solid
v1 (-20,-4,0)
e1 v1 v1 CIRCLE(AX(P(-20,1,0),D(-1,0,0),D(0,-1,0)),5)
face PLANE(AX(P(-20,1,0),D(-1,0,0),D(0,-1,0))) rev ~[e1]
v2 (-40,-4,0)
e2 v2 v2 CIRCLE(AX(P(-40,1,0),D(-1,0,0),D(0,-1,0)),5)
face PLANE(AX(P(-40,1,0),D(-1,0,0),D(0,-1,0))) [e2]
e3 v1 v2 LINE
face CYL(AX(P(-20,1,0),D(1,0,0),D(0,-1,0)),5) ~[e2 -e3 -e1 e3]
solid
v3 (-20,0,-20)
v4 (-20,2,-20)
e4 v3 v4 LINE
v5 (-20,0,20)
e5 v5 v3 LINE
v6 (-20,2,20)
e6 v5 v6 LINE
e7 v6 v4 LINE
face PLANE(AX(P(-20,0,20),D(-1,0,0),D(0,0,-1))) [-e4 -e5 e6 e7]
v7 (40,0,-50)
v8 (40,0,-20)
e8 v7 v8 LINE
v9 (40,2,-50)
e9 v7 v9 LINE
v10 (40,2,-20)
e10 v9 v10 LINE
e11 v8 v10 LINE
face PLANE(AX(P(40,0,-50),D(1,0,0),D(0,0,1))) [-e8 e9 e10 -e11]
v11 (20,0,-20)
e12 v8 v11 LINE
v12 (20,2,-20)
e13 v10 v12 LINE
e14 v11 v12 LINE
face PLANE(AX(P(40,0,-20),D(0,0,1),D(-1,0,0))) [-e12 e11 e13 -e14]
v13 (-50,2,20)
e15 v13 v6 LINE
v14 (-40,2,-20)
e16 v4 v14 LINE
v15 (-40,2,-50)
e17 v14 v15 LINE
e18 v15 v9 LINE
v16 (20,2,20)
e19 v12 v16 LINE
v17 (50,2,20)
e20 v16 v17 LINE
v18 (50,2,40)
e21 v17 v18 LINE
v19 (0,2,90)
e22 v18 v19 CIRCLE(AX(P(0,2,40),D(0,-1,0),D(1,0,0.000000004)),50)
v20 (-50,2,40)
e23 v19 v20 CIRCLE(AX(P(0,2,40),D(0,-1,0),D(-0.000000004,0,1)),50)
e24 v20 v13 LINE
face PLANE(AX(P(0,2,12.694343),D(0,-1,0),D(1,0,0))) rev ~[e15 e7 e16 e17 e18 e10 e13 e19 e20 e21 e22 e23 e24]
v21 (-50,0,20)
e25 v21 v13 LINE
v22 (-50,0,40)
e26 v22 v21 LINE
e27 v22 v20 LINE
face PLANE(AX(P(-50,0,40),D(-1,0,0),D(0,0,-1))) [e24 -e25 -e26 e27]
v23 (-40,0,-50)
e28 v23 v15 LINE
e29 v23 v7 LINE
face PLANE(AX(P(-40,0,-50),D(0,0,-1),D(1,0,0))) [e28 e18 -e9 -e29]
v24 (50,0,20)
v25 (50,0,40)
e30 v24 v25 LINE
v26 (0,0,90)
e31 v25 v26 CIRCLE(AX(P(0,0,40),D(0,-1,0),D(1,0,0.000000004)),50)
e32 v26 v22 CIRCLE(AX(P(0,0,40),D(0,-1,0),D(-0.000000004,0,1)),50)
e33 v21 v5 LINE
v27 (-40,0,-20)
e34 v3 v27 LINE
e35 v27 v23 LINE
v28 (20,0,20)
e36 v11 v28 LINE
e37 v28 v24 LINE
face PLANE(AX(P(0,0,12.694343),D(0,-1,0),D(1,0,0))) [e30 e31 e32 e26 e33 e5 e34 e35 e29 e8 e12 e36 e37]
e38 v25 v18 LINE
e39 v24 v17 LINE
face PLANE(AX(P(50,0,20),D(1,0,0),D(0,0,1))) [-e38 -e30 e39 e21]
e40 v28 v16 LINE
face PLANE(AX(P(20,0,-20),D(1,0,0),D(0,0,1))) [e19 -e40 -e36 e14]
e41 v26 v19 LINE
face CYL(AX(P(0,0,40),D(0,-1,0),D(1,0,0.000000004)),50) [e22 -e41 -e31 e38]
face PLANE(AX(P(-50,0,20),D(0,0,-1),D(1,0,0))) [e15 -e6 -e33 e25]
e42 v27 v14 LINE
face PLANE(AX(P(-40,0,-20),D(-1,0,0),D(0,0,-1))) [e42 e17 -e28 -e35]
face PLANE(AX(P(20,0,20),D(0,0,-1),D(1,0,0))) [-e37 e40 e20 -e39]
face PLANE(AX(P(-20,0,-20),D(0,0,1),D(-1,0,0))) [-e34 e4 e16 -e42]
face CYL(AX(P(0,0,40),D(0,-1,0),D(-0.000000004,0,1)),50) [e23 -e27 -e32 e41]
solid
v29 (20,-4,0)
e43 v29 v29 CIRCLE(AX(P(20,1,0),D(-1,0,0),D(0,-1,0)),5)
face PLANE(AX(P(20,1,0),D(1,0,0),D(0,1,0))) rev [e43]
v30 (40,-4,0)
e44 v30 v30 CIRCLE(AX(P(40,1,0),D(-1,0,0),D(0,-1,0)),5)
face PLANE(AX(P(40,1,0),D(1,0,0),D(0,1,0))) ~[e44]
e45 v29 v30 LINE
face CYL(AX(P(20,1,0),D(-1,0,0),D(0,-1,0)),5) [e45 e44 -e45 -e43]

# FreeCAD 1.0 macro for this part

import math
import FreeCAD as App
import Part
import Sketcher

V = App.Vector

doc = App.newDocument("Part")
body = doc.addObject("PartDesign::Body", "Body")

# Sketch on XZ plane
sketch1 = body.newObject("Sketcher::SketchObject", "Sketch")
sketch1.AttachmentSupport = (doc.getObject("XZ_Plane"), [""])
sketch1.MapMode = "FlatFace"
sketch1.addGeometry(Part.LineSegment(V(-40, -50, 0), V(40, -50, 0)), False)
sketch1.addGeometry(Part.LineSegment(V(40, -50, 0), V(40, -20, 0)), False)
sketch1.addGeometry(Part.LineSegment(V(40, -20, 0), V(20, -20, 0)), False)
sketch1.addGeometry(Part.LineSegment(V(20, -20, 0), V(20, 20, 0)), False)
sketch1.addGeometry(Part.LineSegment(V(20, 20, 0), V(50, 20, 0)), False)
sketch1.addGeometry(Part.LineSegment(V(50, 20, 0), V(50, 40, 0)), False)
sketch1.addGeometry(Part.ArcOfCircle(Part.Circle(V(0, 40, 0), V(0, 0, 1), 50), math.radians(0), math.radians(90)), False)
sketch1.addGeometry(Part.ArcOfCircle(Part.Circle(V(0, 40, 0), V(0, 0, 1), 50), math.radians(90), math.radians(180)), False)
sketch1.addGeometry(Part.LineSegment(V(-50, 40, 0), V(-50, 20, 0)), False)
sketch1.addGeometry(Part.LineSegment(V(-50, 20, 0), V(-20, 20, 0)), False)
sketch1.addGeometry(Part.LineSegment(V(-20, 20, 0), V(-20, -20, 0)), False)
sketch1.addGeometry(Part.LineSegment(V(-20, -20, 0), V(-40, -20, 0)), False)
sketch1.addGeometry(Part.LineSegment(V(-40, -20, 0), V(-40, -50, 0)), False)
sketch1.addConstraint(Sketcher.Constraint("Coincident", 0, 2, 1, 1))
sketch1.addConstraint(Sketcher.Constraint("Coincident", 1, 2, 2, 1))
sketch1.addConstraint(Sketcher.Constraint("Coincident", 2, 2, 3, 1))
sketch1.addConstraint(Sketcher.Constraint("Coincident", 3, 2, 4, 1))
sketch1.addConstraint(Sketcher.Constraint("Coincident", 4, 2, 5, 1))
sketch1.addConstraint(Sketcher.Constraint("Tangent", 5, 2, 6, 1))
sketch1.addConstraint(Sketcher.Constraint("Tangent", 6, 2, 7, 1))
sketch1.addConstraint(Sketcher.Constraint("Tangent", 7, 2, 8, 1))
sketch1.addConstraint(Sketcher.Constraint("Coincident", 8, 2, 9, 1))
sketch1.addConstraint(Sketcher.Constraint("Coincident", 9, 2, 10, 1))
sketch1.addConstraint(Sketcher.Constraint("Coincident", 10, 2, 11, 1))
sketch1.addConstraint(Sketcher.Constraint("Coincident", 11, 2, 12, 1))
sketch1.addConstraint(Sketcher.Constraint("Coincident", 12, 2, 0, 1))
sketch1.addConstraint(Sketcher.Constraint("Horizontal", 0))
sketch1.addConstraint(Sketcher.Constraint("Vertical", 1))
sketch1.addConstraint(Sketcher.Constraint("Horizontal", 2))
sketch1.addConstraint(Sketcher.Constraint("Vertical", 3))
sketch1.addConstraint(Sketcher.Constraint("Horizontal", 4))
sketch1.addConstraint(Sketcher.Constraint("Vertical", 5))
sketch1.addConstraint(Sketcher.Constraint("Vertical", 8))
sketch1.addConstraint(Sketcher.Constraint("Horizontal", 9))
sketch1.addConstraint(Sketcher.Constraint("Vertical", 10))
sketch1.addConstraint(Sketcher.Constraint("Horizontal", 11))
sketch1.addConstraint(Sketcher.Constraint("Vertical", 12))
sketch1.addConstraint(Sketcher.Constraint("Equal", 6, 7))
sketch1.addConstraint(Sketcher.Constraint("Symmetric", 2, 2, 9, 2, -1, 1))
sketch1.addConstraint(Sketcher.Constraint("Symmetric", 4, 2, 8, 2, -2))
sketch1.addConstraint(Sketcher.Constraint("Symmetric", 1, 2, 11, 2, -2))
sketch1.addConstraint(Sketcher.Constraint("PointOnObject", 6, 2, -2))
sketch1.addConstraint(Sketcher.Constraint("Equal", 9, 1))
sketch1.addConstraint(Sketcher.Constraint("Equal", 11, 5))
sketch1.addConstraint(Sketcher.Constraint("Radius", 6, 50.0))
sketch1.addConstraint(Sketcher.Constraint("DistanceX", 0, 1, 0, 2, 80.0))
sketch1.addConstraint(Sketcher.Constraint("DistanceX", 2, 2, 2, 1, 20.0))
sketch1.addConstraint(Sketcher.Constraint("DistanceY", 3, 1, 3, 2, 40.0))
pad1 = body.newObject("PartDesign::Pad", "Pad")
pad1.Profile = sketch1
pad1.Length = 2
pad1.Reversed = True
body2 = doc.addObject("PartDesign::Body", "Body001")

# Sketch on YZ plane
sketch2 = body2.newObject("Sketcher::SketchObject", "Sketch001")
sketch2.AttachmentSupport = (doc.getObject("YZ_Plane001"), [""])
sketch2.MapMode = "FlatFace"
sketch2.AttachmentOffset = App.Placement(V(0, 0, -20), App.Rotation())
sketch2.addGeometry(Part.Circle(V(1, 0, 0), V(0, 0, 1), 5), False)
sketch2.addConstraint(Sketcher.Constraint("PointOnObject", 0, 3, -1))
sketch2.addConstraint(Sketcher.Constraint("Diameter", 0, 10.0))
sketch2.addConstraint(Sketcher.Constraint("DistanceX", -1, 1, 0, 3, 1.0))
pad2 = body2.newObject("PartDesign::Pad", "Pad001")
pad2.Profile = sketch2
pad2.Length = 20
pad2.Reversed = True
body3 = doc.addObject("PartDesign::Body", "Body002")
doc.recompute()

mirroring = doc.addObject("Part::Mirroring", "Mirroring")
mirroring.Source = body2
mirroring.Base = V(0, 0, 0)
mirroring.Normal = V(1, 0, 0)
body3.BaseFeature = mirroring
doc.recompute()
mirroring.Visibility = False

doc.recompute()
